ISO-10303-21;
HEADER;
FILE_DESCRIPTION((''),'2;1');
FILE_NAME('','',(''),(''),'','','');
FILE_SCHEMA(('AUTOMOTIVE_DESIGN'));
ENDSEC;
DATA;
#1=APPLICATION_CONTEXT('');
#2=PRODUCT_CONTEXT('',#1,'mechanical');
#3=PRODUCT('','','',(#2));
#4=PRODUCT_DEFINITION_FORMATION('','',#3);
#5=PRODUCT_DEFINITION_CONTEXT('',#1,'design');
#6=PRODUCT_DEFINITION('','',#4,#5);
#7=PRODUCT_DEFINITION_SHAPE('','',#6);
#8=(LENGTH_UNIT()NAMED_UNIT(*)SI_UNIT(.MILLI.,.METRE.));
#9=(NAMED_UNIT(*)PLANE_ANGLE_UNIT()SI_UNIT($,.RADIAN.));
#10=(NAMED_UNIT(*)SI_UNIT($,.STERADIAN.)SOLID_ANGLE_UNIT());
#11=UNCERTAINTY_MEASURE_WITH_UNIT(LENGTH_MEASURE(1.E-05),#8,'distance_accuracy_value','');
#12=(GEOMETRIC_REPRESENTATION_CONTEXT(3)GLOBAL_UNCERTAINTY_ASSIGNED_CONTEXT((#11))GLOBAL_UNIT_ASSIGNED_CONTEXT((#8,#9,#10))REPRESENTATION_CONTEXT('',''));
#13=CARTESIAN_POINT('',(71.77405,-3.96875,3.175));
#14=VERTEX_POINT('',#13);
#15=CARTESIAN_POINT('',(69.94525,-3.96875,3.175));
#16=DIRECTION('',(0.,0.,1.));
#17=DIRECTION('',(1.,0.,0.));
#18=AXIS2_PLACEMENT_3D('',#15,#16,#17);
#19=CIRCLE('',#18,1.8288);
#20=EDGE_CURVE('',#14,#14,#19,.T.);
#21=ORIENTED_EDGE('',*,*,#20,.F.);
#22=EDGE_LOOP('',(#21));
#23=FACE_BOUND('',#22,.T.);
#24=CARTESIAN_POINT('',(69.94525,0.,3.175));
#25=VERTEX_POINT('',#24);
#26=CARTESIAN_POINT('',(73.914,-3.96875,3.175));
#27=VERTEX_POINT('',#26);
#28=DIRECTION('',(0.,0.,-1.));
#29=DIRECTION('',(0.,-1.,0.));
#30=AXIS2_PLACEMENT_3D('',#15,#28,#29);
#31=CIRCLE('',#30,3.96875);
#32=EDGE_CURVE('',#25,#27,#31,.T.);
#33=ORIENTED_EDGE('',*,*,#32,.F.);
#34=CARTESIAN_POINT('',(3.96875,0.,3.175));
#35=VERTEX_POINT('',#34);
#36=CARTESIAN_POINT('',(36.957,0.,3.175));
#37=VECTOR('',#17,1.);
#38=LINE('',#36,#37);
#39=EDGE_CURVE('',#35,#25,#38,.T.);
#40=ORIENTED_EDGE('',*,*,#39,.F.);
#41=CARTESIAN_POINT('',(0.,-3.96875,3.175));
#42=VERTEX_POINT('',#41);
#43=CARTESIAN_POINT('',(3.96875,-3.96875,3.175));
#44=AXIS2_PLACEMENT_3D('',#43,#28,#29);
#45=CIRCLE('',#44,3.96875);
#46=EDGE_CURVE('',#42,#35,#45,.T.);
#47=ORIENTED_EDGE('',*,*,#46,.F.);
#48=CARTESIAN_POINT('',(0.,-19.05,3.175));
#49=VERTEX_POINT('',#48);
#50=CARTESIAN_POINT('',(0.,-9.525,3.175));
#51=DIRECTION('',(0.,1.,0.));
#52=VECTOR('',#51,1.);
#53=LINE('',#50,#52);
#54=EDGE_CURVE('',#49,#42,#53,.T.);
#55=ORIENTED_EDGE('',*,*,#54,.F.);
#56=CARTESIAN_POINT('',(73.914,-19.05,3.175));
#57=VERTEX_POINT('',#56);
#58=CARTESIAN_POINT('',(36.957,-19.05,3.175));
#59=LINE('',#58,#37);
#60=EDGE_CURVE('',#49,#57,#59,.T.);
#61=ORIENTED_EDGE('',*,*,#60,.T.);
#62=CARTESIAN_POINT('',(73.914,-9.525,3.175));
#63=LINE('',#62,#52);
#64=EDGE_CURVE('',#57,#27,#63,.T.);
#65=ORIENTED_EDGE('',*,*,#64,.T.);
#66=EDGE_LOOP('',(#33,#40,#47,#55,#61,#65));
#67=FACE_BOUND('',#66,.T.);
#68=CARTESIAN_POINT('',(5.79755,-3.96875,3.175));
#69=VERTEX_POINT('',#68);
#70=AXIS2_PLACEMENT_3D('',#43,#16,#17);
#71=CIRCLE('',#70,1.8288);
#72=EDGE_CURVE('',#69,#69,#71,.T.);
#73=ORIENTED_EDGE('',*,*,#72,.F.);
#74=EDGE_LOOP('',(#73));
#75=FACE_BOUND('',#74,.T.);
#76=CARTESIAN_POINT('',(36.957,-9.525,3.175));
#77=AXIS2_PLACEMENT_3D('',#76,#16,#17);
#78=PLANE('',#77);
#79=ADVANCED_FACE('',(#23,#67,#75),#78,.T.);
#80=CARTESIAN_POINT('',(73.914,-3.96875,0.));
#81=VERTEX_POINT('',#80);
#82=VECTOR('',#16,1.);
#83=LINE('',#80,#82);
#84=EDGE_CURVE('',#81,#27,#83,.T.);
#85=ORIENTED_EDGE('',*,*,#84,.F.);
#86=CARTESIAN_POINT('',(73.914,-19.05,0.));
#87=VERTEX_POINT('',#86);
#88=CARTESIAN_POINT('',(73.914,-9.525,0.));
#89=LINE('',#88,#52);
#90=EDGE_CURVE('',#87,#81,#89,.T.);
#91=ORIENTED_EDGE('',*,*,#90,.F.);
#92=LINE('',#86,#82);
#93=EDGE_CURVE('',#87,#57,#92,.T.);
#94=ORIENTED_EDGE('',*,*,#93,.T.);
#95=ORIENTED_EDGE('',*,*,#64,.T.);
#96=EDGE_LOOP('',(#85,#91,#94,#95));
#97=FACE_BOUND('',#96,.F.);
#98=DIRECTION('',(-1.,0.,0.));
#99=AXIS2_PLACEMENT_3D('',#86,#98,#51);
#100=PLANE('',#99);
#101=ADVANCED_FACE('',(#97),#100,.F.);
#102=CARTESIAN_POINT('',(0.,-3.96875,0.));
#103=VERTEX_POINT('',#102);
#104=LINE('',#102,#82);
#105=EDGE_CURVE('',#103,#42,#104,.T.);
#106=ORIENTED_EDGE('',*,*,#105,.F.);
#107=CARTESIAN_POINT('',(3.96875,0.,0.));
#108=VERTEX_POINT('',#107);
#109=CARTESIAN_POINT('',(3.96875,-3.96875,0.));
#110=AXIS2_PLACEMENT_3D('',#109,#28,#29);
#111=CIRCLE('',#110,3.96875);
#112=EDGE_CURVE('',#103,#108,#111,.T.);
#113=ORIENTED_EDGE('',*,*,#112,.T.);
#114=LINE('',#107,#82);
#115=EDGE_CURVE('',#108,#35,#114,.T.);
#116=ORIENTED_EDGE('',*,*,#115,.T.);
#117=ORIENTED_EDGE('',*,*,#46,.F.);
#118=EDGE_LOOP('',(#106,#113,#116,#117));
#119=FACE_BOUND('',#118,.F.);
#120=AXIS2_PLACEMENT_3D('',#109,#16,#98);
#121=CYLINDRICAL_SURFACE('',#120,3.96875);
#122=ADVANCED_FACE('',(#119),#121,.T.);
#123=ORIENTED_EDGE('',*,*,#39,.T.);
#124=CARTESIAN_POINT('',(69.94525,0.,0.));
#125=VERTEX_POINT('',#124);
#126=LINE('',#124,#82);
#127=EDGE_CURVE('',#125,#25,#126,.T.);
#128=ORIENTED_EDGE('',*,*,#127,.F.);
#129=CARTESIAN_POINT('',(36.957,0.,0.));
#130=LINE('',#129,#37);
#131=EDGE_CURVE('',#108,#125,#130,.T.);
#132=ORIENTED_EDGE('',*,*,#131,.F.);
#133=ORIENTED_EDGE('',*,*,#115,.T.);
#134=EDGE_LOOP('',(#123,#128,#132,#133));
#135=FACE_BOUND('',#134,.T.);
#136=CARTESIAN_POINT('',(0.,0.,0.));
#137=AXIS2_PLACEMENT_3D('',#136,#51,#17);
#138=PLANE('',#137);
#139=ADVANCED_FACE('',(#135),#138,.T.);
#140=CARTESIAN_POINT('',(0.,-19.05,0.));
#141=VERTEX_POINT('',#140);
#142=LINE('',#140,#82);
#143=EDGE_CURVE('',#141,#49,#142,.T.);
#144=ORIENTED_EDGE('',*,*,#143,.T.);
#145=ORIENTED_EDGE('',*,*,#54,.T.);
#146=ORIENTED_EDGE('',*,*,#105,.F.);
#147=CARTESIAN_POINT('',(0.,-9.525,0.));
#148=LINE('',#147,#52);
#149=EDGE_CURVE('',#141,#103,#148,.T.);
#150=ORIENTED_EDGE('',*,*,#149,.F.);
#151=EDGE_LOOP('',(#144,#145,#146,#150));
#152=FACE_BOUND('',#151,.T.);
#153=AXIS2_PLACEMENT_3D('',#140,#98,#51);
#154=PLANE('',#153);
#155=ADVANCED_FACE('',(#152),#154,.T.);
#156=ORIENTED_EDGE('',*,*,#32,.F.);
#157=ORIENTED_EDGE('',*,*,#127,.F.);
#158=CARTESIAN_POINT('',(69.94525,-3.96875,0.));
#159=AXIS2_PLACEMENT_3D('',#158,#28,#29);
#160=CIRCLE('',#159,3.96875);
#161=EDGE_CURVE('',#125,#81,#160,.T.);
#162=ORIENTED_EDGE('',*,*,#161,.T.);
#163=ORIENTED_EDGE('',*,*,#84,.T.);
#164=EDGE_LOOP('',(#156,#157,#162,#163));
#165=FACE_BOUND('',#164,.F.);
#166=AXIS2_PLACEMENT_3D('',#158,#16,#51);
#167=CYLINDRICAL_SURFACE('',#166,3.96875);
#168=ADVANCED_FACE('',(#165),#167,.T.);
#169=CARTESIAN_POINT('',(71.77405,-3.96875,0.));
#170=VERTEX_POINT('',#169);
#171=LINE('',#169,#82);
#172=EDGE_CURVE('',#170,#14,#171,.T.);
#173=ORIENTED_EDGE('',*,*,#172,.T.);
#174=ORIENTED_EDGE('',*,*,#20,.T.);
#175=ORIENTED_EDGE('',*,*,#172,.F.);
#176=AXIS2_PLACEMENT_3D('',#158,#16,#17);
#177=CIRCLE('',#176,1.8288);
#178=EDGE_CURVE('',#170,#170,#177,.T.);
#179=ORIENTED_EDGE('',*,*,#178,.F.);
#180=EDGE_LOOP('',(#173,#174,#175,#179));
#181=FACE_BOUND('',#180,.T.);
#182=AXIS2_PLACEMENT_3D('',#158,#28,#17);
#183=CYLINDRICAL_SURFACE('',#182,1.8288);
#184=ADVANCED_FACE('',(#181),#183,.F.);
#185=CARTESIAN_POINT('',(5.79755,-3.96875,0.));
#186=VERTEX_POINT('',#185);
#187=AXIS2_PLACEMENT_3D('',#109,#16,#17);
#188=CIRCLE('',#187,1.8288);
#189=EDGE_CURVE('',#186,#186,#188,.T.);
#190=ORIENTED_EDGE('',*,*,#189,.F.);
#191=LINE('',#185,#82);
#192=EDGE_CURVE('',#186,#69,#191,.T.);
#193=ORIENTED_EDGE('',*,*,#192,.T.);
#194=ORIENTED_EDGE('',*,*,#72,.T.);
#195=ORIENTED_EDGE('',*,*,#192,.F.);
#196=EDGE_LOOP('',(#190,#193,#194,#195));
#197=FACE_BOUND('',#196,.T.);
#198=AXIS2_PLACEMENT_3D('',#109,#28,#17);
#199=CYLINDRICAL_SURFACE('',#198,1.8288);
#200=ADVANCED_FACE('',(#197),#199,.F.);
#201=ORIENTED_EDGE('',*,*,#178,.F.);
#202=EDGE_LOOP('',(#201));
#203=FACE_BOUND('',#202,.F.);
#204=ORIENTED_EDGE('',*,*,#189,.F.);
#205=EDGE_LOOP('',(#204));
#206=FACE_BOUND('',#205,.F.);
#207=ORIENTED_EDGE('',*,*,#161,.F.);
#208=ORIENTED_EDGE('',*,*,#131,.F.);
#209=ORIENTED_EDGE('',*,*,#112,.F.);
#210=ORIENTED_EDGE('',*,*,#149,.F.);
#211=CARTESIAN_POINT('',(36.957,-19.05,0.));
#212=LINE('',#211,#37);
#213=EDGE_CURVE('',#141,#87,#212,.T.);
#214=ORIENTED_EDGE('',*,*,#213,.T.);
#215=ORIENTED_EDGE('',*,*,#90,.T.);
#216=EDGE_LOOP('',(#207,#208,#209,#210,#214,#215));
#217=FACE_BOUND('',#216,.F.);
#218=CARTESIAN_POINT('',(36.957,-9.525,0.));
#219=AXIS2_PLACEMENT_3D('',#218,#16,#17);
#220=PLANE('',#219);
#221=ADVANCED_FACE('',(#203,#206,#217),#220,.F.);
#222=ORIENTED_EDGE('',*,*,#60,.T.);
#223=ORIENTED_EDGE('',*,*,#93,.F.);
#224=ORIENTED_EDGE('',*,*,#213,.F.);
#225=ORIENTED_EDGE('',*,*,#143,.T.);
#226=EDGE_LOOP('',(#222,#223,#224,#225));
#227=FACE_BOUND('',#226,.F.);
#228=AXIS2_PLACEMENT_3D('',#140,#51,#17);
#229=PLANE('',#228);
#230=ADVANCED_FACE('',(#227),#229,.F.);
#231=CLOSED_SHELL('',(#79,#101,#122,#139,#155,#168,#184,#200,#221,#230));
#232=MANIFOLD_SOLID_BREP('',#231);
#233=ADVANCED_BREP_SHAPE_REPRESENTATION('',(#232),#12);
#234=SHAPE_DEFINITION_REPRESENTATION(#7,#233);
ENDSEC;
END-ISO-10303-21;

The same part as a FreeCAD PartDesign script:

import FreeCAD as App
import Part
import Sketcher
from FreeCAD import Vector
Q = App.Units.Quantity


def edges_at(feature, points):
    """Names of the edges that pass closest to the given points."""
    edges = feature.Shape.Edges
    near = lambda p: min(range(len(edges)), key=lambda i: edges[i].distToShape(Part.Vertex(*p))[0])
    return sorted({f"Edge{near(p) + 1}" for p in points})


def add_polygon(sketch, points):
    """Adds a closed chain of lines whose ends are joined by coincident constraints."""
    first, n = sketch.GeometryCount, len(points)
    for a, b in zip(points, points[1:] + points[:1]):
        sketch.addGeometry(Part.LineSegment(App.Vector(*a, 0), App.Vector(*b, 0)), False)
    for i in range(n):
        sketch.addConstraint(Sketcher.Constraint("Coincident", first + i, 2, first + (i + 1) % n, 1))

doc = App.newDocument("Part")
body = doc.addObject("PartDesign::Body", "Body")

sketch1 = body.newObject("Sketcher::SketchObject", "Sketch")
sketch1.AttachmentSupport = (doc.getObject("XY_Plane"), [""])
sketch1.MapMode = "FlatFace"
add_polygon(sketch1, [(0, 0), (0, -19.05), (73.914, -19.05), (73.914, 0)])
sketch1.addGeometry(Part.Circle(Vector(3.96875, -3.96875, 0), Vector(0, 0, 1), 1.8288), False)
sketch1.addGeometry(Part.Circle(Vector(69.94525, -3.96875, 0), Vector(0, 0, 1), 1.8288), False)
sketch1.addConstraint(Sketcher.Constraint("Vertical", 0))
sketch1.addConstraint(Sketcher.Constraint("Horizontal", 1))
sketch1.addConstraint(Sketcher.Constraint("Vertical", 2))
sketch1.addConstraint(Sketcher.Constraint("Horizontal", 3))
sketch1.addConstraint(Sketcher.Constraint("Coincident", 3, 2, -1, 1))
sketch1.addConstraint(Sketcher.Constraint("Equal", 4, 5))
sketch1.addConstraint(Sketcher.Constraint("Horizontal", 4, 3, 5, 3))
sketch1.addConstraint(Sketcher.Constraint("Diameter", 4, Q("0.144 in")))
sketch1.addConstraint(Sketcher.Constraint("DistanceX", 1, 1, 1, 2, Q("2.91 in")))
sketch1.addConstraint(Sketcher.Constraint("DistanceY", 0, 2, 0, 1, Q("0.75 in")))
sketch1.addConstraint(Sketcher.Constraint("DistanceX", -1, 1, 4, 3, Q("0.15625 in")))
sketch1.addConstraint(Sketcher.Constraint("DistanceY", 4, 3, -1, 1, Q("0.15625 in")))
sketch1.addConstraint(Sketcher.Constraint("DistanceX", 5, 3, 1, 2, Q("0.15625 in")))
pad1 = body.newObject("PartDesign::Pad", "Pad")
pad1.Profile = sketch1
pad1.Length = Q("0.125 in")
doc.recompute()

fillet = body.newObject("PartDesign::Fillet", "Fillet")
fillet.Base = (pad1, edges_at(pad1, [(0, 0, 1.587), (73.914, 0, 1.587)]))
fillet.Radius = Q("0.15625 in")

doc.recompute()
